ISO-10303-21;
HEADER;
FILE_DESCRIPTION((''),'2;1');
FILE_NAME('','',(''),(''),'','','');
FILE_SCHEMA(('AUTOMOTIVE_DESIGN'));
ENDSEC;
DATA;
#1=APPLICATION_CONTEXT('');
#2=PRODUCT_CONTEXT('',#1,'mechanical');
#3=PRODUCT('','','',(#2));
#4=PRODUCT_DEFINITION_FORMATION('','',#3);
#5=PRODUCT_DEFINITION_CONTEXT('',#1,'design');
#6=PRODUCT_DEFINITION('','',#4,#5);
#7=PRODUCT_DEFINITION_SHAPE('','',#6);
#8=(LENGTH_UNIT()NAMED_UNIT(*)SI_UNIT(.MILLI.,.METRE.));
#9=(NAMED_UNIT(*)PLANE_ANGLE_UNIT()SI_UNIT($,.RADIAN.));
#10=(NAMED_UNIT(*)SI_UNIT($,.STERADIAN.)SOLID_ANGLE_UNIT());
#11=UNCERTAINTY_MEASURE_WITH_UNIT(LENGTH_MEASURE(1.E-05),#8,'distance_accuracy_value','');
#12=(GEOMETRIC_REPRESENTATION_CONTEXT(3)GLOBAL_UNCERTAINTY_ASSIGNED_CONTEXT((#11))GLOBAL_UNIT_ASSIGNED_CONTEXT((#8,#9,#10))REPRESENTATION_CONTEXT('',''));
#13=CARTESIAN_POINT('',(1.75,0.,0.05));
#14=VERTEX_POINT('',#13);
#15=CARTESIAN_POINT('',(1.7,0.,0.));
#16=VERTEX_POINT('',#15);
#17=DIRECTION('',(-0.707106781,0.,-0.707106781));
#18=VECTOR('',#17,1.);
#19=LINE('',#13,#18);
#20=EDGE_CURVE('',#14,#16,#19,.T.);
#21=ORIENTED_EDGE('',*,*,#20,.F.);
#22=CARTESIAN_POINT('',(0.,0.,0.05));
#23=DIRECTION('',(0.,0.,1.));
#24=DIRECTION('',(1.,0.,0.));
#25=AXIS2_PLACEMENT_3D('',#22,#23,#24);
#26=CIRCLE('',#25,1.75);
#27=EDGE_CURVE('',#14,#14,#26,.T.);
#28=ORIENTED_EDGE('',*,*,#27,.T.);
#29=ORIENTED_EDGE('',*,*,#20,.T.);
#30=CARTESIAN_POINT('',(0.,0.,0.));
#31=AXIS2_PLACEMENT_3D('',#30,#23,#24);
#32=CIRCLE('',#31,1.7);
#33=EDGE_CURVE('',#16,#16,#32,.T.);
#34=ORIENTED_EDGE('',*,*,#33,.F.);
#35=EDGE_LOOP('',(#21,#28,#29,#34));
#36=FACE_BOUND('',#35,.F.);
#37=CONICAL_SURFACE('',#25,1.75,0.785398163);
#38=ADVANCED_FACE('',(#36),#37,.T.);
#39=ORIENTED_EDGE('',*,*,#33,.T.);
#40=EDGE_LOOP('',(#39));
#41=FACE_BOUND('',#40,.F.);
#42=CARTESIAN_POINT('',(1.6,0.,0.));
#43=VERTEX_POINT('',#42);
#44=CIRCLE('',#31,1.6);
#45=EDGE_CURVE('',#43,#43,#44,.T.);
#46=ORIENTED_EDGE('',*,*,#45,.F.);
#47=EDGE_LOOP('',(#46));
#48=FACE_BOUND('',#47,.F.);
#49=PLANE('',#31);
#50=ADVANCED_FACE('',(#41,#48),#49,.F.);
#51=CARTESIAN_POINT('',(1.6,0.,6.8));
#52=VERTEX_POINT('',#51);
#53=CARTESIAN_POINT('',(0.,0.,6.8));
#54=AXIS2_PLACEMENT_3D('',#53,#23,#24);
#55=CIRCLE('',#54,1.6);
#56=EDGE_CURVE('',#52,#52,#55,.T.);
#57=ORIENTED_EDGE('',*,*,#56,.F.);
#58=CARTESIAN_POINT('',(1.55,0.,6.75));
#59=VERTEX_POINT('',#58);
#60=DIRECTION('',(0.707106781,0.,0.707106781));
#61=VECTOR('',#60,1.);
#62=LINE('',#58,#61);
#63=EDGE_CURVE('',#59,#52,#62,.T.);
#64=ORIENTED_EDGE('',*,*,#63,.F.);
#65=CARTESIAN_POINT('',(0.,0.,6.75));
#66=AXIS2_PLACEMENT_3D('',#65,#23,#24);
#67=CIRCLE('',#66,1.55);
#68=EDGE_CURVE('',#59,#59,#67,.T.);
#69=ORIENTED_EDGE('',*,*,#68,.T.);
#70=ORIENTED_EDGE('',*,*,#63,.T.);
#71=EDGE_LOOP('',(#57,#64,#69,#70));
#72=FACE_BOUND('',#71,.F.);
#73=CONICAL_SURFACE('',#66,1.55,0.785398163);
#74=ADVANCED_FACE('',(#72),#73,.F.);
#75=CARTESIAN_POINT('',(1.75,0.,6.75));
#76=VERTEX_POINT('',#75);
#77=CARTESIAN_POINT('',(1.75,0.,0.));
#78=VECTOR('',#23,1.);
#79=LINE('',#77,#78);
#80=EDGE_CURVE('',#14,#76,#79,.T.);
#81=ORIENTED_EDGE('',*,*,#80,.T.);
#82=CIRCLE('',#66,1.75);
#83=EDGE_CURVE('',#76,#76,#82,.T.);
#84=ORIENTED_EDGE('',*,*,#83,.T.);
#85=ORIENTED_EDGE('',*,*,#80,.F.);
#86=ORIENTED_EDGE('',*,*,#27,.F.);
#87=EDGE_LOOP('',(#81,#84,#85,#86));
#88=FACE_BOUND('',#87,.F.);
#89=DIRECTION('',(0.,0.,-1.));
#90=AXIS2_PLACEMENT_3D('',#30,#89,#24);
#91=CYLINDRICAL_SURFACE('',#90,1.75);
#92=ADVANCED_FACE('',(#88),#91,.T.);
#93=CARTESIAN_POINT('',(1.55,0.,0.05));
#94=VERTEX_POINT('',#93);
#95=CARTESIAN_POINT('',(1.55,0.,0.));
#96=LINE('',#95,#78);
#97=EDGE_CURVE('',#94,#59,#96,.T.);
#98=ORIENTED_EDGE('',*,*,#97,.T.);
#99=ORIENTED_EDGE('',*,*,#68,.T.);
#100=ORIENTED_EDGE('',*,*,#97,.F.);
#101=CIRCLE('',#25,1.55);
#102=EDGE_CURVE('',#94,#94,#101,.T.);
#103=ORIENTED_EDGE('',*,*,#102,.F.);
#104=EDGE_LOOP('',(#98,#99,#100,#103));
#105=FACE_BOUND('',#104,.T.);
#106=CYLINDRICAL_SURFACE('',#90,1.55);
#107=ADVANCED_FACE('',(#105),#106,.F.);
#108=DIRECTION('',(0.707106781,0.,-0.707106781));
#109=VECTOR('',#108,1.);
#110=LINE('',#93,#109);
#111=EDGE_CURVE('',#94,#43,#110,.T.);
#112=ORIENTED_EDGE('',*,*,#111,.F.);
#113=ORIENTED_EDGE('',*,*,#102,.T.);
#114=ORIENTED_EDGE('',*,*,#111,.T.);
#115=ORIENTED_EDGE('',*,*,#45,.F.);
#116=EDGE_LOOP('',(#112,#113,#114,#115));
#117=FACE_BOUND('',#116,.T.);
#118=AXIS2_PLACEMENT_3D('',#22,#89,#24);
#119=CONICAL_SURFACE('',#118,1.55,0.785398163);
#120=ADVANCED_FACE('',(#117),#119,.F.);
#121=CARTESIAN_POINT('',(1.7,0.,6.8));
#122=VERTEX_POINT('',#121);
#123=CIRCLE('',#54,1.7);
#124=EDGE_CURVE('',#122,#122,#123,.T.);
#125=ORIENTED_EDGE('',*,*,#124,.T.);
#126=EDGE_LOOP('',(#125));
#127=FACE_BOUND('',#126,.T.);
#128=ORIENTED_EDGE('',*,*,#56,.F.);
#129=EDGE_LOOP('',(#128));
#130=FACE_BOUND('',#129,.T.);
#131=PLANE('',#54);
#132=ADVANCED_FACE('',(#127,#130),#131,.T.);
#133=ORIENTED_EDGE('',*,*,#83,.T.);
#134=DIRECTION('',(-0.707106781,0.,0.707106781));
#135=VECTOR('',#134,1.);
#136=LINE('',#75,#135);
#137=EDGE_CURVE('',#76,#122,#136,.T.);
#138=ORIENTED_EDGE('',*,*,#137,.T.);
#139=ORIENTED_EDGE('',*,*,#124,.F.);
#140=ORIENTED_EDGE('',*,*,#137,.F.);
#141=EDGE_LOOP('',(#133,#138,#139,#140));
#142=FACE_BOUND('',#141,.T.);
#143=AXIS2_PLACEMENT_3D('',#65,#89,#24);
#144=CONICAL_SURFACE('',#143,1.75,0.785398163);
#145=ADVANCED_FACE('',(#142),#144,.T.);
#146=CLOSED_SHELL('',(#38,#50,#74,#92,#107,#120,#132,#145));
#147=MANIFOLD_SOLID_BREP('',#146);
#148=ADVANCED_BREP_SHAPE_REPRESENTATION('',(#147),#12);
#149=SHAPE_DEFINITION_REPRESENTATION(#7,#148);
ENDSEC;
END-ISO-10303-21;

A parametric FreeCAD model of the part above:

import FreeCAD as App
import Part
import Sketcher
Q = App.Units.Quantity


def edges_at(feature, points):
    """Names of the edges that pass closest to the given points."""
    edges = feature.Shape.Edges
    near = lambda p: min(range(len(edges)), key=lambda i: edges[i].distToShape(Part.Vertex(*p))[0])
    return sorted({f"Edge{near(p) + 1}" for p in points})

doc = App.newDocument("Part")
body = doc.addObject("PartDesign::Body", "Body")

sketch1 = body.newObject("Sketcher::SketchObject", "Sketch")
sketch1.AttachmentSupport = (doc.getObject("XY_Plane"), [""])
sketch1.MapMode = "FlatFace"
sketch1.addGeometry(Part.Circle(App.Vector(0, 0, 0), App.Vector(0, 0, 1), 1.8), False)
sketch1.addGeometry(Part.Circle(App.Vector(0, 0, 0), App.Vector(0, 0, 1), 1.6), False)
sketch1.addConstraint(Sketcher.Constraint("Coincident", 0, 3, -1, 1))
sketch1.addConstraint(Sketcher.Constraint("Coincident", 1, 3, -1, 1))
sketch1.addConstraint(Sketcher.Constraint("Diameter", 0, Q("3.5 mm")))
sketch1.addConstraint(Sketcher.Constraint("Diameter", 1, Q("3.1 mm")))
pad1 = body.newObject("PartDesign::Pad", "Pad")
pad1.Profile = sketch1
pad1.Length = 6.8
doc.recompute()

chamfer = body.newObject("PartDesign::Chamfer", "Chamfer")
chamfer.Base = (pad1, edges_at(pad1, [
    (-1.75, 0, 6.8),
    (-1.55, 0, 6.8),
    (-1.75, 0, 0),
    (-1.55, 0, 0),
]))
chamfer.Size = 0.05

doc.recompute()
